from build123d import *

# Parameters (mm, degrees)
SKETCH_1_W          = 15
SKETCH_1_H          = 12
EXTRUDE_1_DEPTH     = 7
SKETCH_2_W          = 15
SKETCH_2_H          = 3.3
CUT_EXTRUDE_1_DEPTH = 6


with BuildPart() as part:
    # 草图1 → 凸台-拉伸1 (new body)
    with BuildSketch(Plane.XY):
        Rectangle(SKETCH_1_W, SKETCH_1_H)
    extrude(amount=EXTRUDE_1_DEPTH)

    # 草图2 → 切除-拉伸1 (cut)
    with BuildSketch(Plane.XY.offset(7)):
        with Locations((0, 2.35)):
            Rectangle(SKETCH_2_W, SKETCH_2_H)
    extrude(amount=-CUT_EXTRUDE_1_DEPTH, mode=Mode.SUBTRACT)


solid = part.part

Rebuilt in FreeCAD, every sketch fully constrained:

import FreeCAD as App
import Part
import Sketcher
from FreeCAD import Vector
Q = App.Units.Quantity

doc = App.newDocument("Part")
body = doc.addObject("PartDesign::Body", "Body")

# Sketch on XY plane
sketch1 = body.newObject("Sketcher::SketchObject", "Sketch")
sketch1.AttachmentSupport = (doc.getObject("XY_Plane"), [""])
sketch1.MapMode = "FlatFace"
sketch1.addGeometry([
    Part.LineSegment(Vector(-8, 6, 0), Vector(-8, -6, 0)),
    Part.LineSegment(Vector(-8, -6, 0), Vector(8, -6, 0)),
    Part.LineSegment(Vector(8, -6, 0), Vector(8, 6, 0)),
    Part.LineSegment(Vector(8, 6, 0), Vector(-8, 6, 0)),
], False)
sketch1.addConstraint([
    Sketcher.Constraint("Coincident", 0, 2, 1, 1),
    Sketcher.Constraint("Coincident", 1, 2, 2, 1),
    Sketcher.Constraint("Coincident", 2, 2, 3, 1),
    Sketcher.Constraint("Coincident", 3, 2, 0, 1),
    Sketcher.Constraint("Vertical", 0),
    Sketcher.Constraint("Horizontal", 1),
    Sketcher.Constraint("Vertical", 2),
    Sketcher.Constraint("Horizontal", 3),
    Sketcher.Constraint("Symmetric", 0, 2, 2, 2, -1, 1),
    Sketcher.Constraint("DistanceX", 1, 1, 1, 2, Q("15 mm")),
    Sketcher.Constraint("DistanceY", 0, 2, 0, 1, Q("12 mm")),
])
pad1 = body.newObject("PartDesign::Pad", "Pad")
pad1.Profile = sketch1
pad1.Length = 7

# Sketch on XY plane
sketch2 = body.newObject("Sketcher::SketchObject", "Sketch001")
sketch2.AttachmentSupport = (doc.getObject("XY_Plane"), [""])
sketch2.MapMode = "FlatFace"
sketch2.AttachmentOffset = App.Placement(Vector(0, 0, 7), App.Rotation())
sketch2.addGeometry([
    Part.LineSegment(Vector(-7.5, 4, 0), Vector(-7.5, 0.7, 0)),
    Part.LineSegment(Vector(-7.5, 0.7, 0), Vector(7.5, 0.7, 0)),
    Part.LineSegment(Vector(7.5, 0.7, 0), Vector(7.5, 4, 0)),
    Part.LineSegment(Vector(7.5, 4, 0), Vector(-7.5, 4, 0)),
], False)
sketch2.addConstraint([
    Sketcher.Constraint("Coincident", 0, 2, 1, 1),
    Sketcher.Constraint("Coincident", 1, 2, 2, 1),
    Sketcher.Constraint("Coincident", 2, 2, 3, 1),
    Sketcher.Constraint("Coincident", 3, 2, 0, 1),
    Sketcher.Constraint("Vertical", 0),
    Sketcher.Constraint("Horizontal", 1),
    Sketcher.Constraint("Vertical", 2),
    Sketcher.Constraint("Horizontal", 3),
    Sketcher.Constraint("DistanceX", 1, 1, 1, 2, Q("15 mm")),
    Sketcher.Constraint("DistanceY", 0, 2, 0, 1, Q("3.3 mm")),
    Sketcher.Constraint("DistanceY", -1, 1, 2, 2, Q("4 mm")),
    Sketcher.Constraint("DistanceX", 0, 2, -1, 1, Q("7.5 mm")),
])
pocket1 = body.newObject("PartDesign::Pocket", "Pocket")
pocket1.Profile = sketch2
pocket1.Length = 6

doc.recompute()
